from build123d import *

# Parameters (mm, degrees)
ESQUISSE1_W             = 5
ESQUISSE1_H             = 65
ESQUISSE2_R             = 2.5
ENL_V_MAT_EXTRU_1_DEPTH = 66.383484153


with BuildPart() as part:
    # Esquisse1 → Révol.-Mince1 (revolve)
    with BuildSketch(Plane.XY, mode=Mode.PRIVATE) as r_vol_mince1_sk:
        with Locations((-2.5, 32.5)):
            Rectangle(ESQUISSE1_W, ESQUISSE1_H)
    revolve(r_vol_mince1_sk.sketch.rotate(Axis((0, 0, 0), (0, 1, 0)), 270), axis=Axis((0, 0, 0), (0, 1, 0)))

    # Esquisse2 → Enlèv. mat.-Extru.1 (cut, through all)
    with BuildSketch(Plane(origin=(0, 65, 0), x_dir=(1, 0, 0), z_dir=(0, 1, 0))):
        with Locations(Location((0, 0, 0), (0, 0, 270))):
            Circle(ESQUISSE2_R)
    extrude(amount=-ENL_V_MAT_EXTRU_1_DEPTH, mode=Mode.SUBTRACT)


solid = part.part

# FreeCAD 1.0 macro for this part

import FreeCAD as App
import Part
import Sketcher


def add_polygon(sketch, points):
    """Adds a closed chain of lines whose ends are joined by coincident constraints."""
    first, n = sketch.GeometryCount, len(points)
    for a, b in zip(points, points[1:] + points[:1]):
        sketch.addGeometry(Part.LineSegment(App.Vector(*a, 0), App.Vector(*b, 0)), False)
    for i in range(n):
        sketch.addConstraint(Sketcher.Constraint("Coincident", first + i, 2, first + (i + 1) % n, 1))

doc = App.newDocument("Part")
params = doc.addObject("Spreadsheet::Sheet", "Params")
for row, (alias, value) in enumerate([
    ("sketch1_width", "5 mm"),
    ("sketch1_height", "65 mm"),
    ("revolution_angle", "360 deg"),
    ("sketch2_diameter", "5 mm"),
], start=1):
    params.set(f"A{row}", alias)
    params.set(f"B{row}", "=" + value)
    params.setAlias(f"B{row}", alias)

body = doc.addObject("PartDesign::Body", "Body")

# Sketch on XY plane
sketch1 = body.newObject("Sketcher::SketchObject", "Sketch")
sketch1.AttachmentSupport = (doc.getObject("XY_Plane"), [""])
sketch1.MapMode = "FlatFace"
add_polygon(sketch1, [(-5, 65), (-5, 0), (0, 0), (0, 65)])  # lines 0-3
sketch1.addConstraint(Sketcher.Constraint("Vertical", 0))
sketch1.addConstraint(Sketcher.Constraint("Horizontal", 1))
sketch1.addConstraint(Sketcher.Constraint("Vertical", 2))
sketch1.addConstraint(Sketcher.Constraint("Horizontal", 3))
sketch1.addConstraint(Sketcher.Constraint("Coincident", 1, 2, -1, 1))
sketch1.addConstraint(Sketcher.Constraint("DistanceX", 1, 1, 1, 2, 5.0))
sketch1.addConstraint(Sketcher.Constraint("DistanceY", 0, 2, 0, 1, 65.0))
sketch1.setExpression("Constraints[9]", "Params.sketch1_width")
sketch1.setExpression("Constraints[10]", "Params.sketch1_height")
revolution = body.newObject("PartDesign::Revolution", "Revolution")
revolution.Profile = sketch1
revolution.ReferenceAxis = (sketch1, ["V_Axis"])
revolution.setExpression("Angle", "Params.revolution_angle")

# Sketch on XZ plane
sketch2 = body.newObject("Sketcher::SketchObject", "Sketch001")
sketch2.AttachmentSupport = (doc.getObject("XZ_Plane"), [""])
sketch2.MapMode = "FlatFace"
sketch2.AttachmentOffset = App.Placement(App.Vector(0, 0, -65), App.Rotation())
sketch2.addGeometry(Part.Circle(App.Vector(0, 0, 0), App.Vector(0, 0, 1), 2.5), False)
sketch2.addConstraint(Sketcher.Constraint("Coincident", 0, 3, -1, 1))
sketch2.addConstraint(Sketcher.Constraint("Diameter", 0, 5.0))
sketch2.setExpression("Constraints[1]", "Params.sketch2_diameter")
pocket1 = body.newObject("PartDesign::Pocket", "Pocket")
pocket1.Profile = sketch2
pocket1.Type = "ThroughAll"
pocket1.Reversed = True

doc.recompute()
